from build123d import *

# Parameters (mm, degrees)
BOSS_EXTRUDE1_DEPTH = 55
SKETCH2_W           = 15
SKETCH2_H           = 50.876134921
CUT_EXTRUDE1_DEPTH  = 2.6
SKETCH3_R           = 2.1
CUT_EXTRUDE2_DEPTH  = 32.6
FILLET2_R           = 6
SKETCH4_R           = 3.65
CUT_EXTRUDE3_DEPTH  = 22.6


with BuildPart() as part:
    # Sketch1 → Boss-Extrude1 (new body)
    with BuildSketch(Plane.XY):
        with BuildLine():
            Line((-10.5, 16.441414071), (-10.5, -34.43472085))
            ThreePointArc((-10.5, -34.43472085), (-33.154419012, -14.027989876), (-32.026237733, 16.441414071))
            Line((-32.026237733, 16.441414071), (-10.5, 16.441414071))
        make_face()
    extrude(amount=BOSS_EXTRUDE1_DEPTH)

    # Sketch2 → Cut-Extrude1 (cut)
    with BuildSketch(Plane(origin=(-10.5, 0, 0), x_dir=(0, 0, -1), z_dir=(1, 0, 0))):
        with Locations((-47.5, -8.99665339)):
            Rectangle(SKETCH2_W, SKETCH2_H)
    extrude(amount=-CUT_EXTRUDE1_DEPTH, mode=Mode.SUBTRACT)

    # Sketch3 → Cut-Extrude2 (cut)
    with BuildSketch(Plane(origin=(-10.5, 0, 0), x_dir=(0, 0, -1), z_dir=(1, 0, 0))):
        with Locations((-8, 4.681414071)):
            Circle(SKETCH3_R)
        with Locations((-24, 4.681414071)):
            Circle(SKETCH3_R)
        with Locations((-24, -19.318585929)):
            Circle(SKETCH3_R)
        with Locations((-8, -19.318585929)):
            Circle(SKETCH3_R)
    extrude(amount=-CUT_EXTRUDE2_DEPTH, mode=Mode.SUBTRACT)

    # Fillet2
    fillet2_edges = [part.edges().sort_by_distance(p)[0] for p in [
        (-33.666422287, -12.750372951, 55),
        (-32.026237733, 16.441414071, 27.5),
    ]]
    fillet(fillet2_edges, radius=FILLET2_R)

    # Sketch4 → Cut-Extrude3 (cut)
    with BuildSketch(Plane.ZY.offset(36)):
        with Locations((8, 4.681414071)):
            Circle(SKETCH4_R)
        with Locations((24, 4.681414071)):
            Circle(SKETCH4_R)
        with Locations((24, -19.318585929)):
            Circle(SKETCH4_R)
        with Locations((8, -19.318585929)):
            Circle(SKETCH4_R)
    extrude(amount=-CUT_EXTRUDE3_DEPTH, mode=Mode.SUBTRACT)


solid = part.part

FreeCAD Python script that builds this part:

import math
import FreeCAD as App
import Part
import Sketcher
from FreeCAD import Vector


def edges_at(feature, points):
    """Names of the edges that pass closest to the given points."""
    edges = feature.Shape.Edges
    near = lambda p: min(range(len(edges)), key=lambda i: edges[i].distToShape(Part.Vertex(*p))[0])
    return sorted({f"Edge{near(p) + 1}" for p in points})


def add_polygon(sketch, points):
    """Adds a closed chain of lines whose ends are joined by coincident constraints."""
    first, n = sketch.GeometryCount, len(points)
    for a, b in zip(points, points[1:] + points[:1]):
        sketch.addGeometry(Part.LineSegment(App.Vector(*a, 0), App.Vector(*b, 0)), False)
    for i in range(n):
        sketch.addConstraint(Sketcher.Constraint("Coincident", first + i, 2, first + (i + 1) % n, 1))

doc = App.newDocument("Part")
body = doc.addObject("PartDesign::Body", "Body")

sketch1 = doc.addObject("Sketcher::SketchObject", "Sketch")
body.addObject(sketch1)
sketch1.AttachmentSupport = (doc.XY_Plane, [""])
sketch1.MapMode = "FlatFace"
sketch1.addGeometry([
    Part.LineSegment(Vector(-10, -34, 0), Vector(-10, 16, 0)),
    Part.LineSegment(Vector(-10, 16, 0), Vector(-32, 16, 0)),
    Part.ArcOfCircle(Part.Circle(Vector(0, 0, 0), Vector(0, 0, 1), 36), math.radians(153), math.radians(253)),
], False)
sketch1.addConstraint([
    Sketcher.Constraint("Coincident", 0, 2, 1, 1),
    Sketcher.Constraint("Coincident", 1, 2, 2, 1),
    Sketcher.Constraint("Coincident", 2, 2, 0, 1),
    Sketcher.Constraint("Vertical", 0),
    Sketcher.Constraint("Horizontal", 1),
    Sketcher.Constraint("Coincident", 2, 3, -1, 1),
    Sketcher.Constraint("Radius", 2, 36.0),
    Sketcher.Constraint("DistanceX", 0, 2, -1, 1, 10.5),
    Sketcher.Constraint("DistanceX", 1, 2, 1, 1, 21.526238),
])
pad1 = doc.addObject("PartDesign::Pad", "Pad")
body.addObject(pad1)
pad1.Profile = sketch1
pad1.Length = 55

sketch2 = doc.addObject("Sketcher::SketchObject", "Sketch001")
body.addObject(sketch2)
sketch2.AttachmentSupport = (doc.YZ_Plane, [""])
sketch2.MapMode = "FlatFace"
sketch2.AttachmentOffset = App.Placement(Vector(0, 0, -10.5), App.Rotation())
add_polygon(sketch2, [(16, 55), (-34, 55), (-34, 40), (16, 40)])
sketch2.addConstraint([
    Sketcher.Constraint("Horizontal", 0),
    Sketcher.Constraint("Vertical", 1),
    Sketcher.Constraint("Horizontal", 2),
    Sketcher.Constraint("Vertical", 3),
    Sketcher.Constraint("DistanceY", 1, 2, 1, 1, 15.0),
    Sketcher.Constraint("DistanceY", -1, 1, 0, 2, 55.0),
    Sketcher.Constraint("DistanceX", 0, 2, 0, 1, 50.876135),
    Sketcher.Constraint("DistanceX", 0, 2, -1, 1, 34.434721),
])
pocket1 = doc.addObject("PartDesign::Pocket", "Pocket")
body.addObject(pocket1)
pocket1.Profile = sketch2
pocket1.Length = 2.6

sketch3 = doc.addObject("Sketcher::SketchObject", "Sketch002")
body.addObject(sketch3)
sketch3.AttachmentSupport = (doc.YZ_Plane, [""])
sketch3.MapMode = "FlatFace"
sketch3.AttachmentOffset = App.Placement(Vector(0, 0, -10.5), App.Rotation())
sketch3.addGeometry([
    Part.Circle(Vector(4.7, 8, 0), Vector(0, 0, 1), 2.1),
    Part.Circle(Vector(4.7, 24, 0), Vector(0, 0, 1), 2.1),
    Part.Circle(Vector(-19.3, 24, 0), Vector(0, 0, 1), 2.1),
    Part.Circle(Vector(-19.3, 8, 0), Vector(0, 0, 1), 2.1),
], False)
sketch3.addConstraint([
    Sketcher.Constraint("Equal", 0, 1),
    Sketcher.Constraint("Equal", 1, 2),
    Sketcher.Constraint("Equal", 2, 3),
    Sketcher.Constraint("Horizontal", 1, 3, 2, 3),
    Sketcher.Constraint("Horizontal", 0, 3, 3, 3),
    Sketcher.Constraint("Vertical", 0, 3, 1, 3),
    Sketcher.Constraint("Vertical", 2, 3, 3, 3),
    Sketcher.Constraint("Diameter", 0, 4.2),
    Sketcher.Constraint("DistanceY", -1, 1, 0, 3, 8.0),
    Sketcher.Constraint("DistanceY", -1, 1, 1, 3, 24.0),
    Sketcher.Constraint("DistanceX", 2, 3, 1, 3, 24.0),
    Sketcher.Constraint("DistanceX", -1, 1, 0, 3, 4.681414),
])
pocket2 = doc.addObject("PartDesign::Pocket", "Pocket001")
body.addObject(pocket2)
pocket2.Profile = sketch3
pocket2.Length = 32.6
doc.recompute()

fillet = doc.addObject("PartDesign::Fillet", "Fillet")
body.addObject(fillet)
fillet.Base = (pocket2, edges_at(pocket2, [(-33.666, -12.75, 55), (-32.026, 16.441, 27.5)]))
fillet.Radius = 6

sketch4 = doc.addObject("Sketcher::SketchObject", "Sketch003")
body.addObject(sketch4)
sketch4.AttachmentSupport = (doc.YZ_Plane, [""])
sketch4.MapMode = "FlatFace"
sketch4.AttachmentOffset = App.Placement(Vector(0, 0, -36), App.Rotation())
sketch4.addGeometry([
    Part.Circle(Vector(4.7, 8, 0), Vector(0, 0, 1), 3.6),
    Part.Circle(Vector(4.7, 24, 0), Vector(0, 0, 1), 3.6),
    Part.Circle(Vector(-19.3, 24, 0), Vector(0, 0, 1), 3.6),
    Part.Circle(Vector(-19.3, 8, 0), Vector(0, 0, 1), 3.6),
], False)
sketch4.addConstraint([
    Sketcher.Constraint("Equal", 0, 1),
    Sketcher.Constraint("Equal", 1, 2),
    Sketcher.Constraint("Equal", 2, 3),
    Sketcher.Constraint("Horizontal", 1, 3, 2, 3),
    Sketcher.Constraint("Horizontal", 0, 3, 3, 3),
    Sketcher.Constraint("Vertical", 0, 3, 1, 3),
    Sketcher.Constraint("Vertical", 2, 3, 3, 3),
    Sketcher.Constraint("Diameter", 0, 7.3),
    Sketcher.Constraint("DistanceY", -1, 1, 0, 3, 8.0),
    Sketcher.Constraint("DistanceY", -1, 1, 1, 3, 24.0),
    Sketcher.Constraint("DistanceX", 2, 3, 1, 3, 24.0),
    Sketcher.Constraint("DistanceX", -1, 1, 0, 3, 4.681414),
])
pocket3 = doc.addObject("PartDesign::Pocket", "Pocket002")
body.addObject(pocket3)
pocket3.Profile = sketch4
pocket3.Length = 22.6
pocket3.Reversed = True

doc.recompute()
